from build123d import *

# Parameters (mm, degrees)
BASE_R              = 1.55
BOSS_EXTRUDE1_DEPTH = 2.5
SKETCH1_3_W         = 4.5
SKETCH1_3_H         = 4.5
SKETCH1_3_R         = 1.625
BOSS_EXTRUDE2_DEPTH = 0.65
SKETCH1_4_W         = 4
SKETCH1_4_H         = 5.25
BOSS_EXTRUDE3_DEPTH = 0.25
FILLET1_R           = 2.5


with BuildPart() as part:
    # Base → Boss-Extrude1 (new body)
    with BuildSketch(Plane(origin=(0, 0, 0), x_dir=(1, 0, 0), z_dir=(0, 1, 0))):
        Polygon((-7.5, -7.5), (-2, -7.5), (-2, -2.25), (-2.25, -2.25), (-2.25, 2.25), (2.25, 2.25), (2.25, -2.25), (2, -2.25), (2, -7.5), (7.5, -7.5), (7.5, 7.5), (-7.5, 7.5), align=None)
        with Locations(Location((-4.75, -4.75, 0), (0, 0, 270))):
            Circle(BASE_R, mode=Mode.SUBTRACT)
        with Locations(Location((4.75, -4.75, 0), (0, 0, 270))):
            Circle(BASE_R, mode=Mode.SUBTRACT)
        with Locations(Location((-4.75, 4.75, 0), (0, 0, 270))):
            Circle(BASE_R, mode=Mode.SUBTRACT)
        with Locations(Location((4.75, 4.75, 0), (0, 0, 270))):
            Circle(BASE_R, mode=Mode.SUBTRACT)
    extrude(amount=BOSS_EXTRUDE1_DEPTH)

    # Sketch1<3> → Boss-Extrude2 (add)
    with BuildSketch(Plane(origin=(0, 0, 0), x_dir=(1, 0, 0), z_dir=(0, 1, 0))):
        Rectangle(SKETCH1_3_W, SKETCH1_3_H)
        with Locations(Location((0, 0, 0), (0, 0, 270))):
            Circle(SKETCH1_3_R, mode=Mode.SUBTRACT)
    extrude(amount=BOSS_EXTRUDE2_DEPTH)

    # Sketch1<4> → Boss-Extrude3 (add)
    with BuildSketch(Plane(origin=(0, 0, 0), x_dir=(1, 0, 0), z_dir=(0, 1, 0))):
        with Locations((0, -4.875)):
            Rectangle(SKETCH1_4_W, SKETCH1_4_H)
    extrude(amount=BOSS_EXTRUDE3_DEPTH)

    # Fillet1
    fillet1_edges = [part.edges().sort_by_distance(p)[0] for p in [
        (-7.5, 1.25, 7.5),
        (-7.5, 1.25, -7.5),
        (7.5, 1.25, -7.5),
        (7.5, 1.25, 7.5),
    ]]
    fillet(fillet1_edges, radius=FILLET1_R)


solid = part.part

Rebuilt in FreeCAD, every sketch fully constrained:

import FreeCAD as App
import Part
import Sketcher
Q = App.Units.Quantity


def edges_at(feature, points):
    """Names of the edges that pass closest to the given points."""
    edges = feature.Shape.Edges
    near = lambda p: min(range(len(edges)), key=lambda i: edges[i].distToShape(Part.Vertex(*p))[0])
    return sorted({f"Edge{near(p) + 1}" for p in points})


def add_polygon(sketch, points):
    """Adds a closed chain of lines whose ends are joined by coincident constraints."""
    first, n = sketch.GeometryCount, len(points)
    for a, b in zip(points, points[1:] + points[:1]):
        sketch.addGeometry(Part.LineSegment(App.Vector(*a, 0), App.Vector(*b, 0)), False)
    for i in range(n):
        sketch.addConstraint(Sketcher.Constraint("Coincident", first + i, 2, first + (i + 1) % n, 1))

doc = App.newDocument("Part")
body = doc.addObject("PartDesign::Body", "Body")

sketch1 = doc.addObject("Sketcher::SketchObject", "Sketch")
body.addObject(sketch1)
sketch1.AttachmentSupport = (doc.XZ_Plane, [""])
sketch1.MapMode = "FlatFace"
add_polygon(sketch1, [(-7.5, 7.5), (-2, 7.5), (-2, 2.25), (-2.25, 2.25), (-2.25, -2.25), (2.25, -2.25), (2.25, 2.25), (2, 2.25), (2, 7.5), (7.5, 7.5), (7.5, -7.5), (-7.5, -7.5)])
sketch1.addGeometry(Part.Circle(App.Vector(-4.75, 4.75, 0), App.Vector(0, 0, 1), 1.55), False)
sketch1.addGeometry(Part.Circle(App.Vector(4.75, 4.75, 0), App.Vector(0, 0, 1), 1.55), False)
sketch1.addGeometry(Part.Circle(App.Vector(-4.75, -4.75, 0), App.Vector(0, 0, 1), 1.55), False)
sketch1.addGeometry(Part.Circle(App.Vector(4.75, -4.75, 0), App.Vector(0, 0, 1), 1.55), False)
sketch1.addConstraint([
    Sketcher.Constraint("Horizontal", 0),
    Sketcher.Constraint("Vertical", 1),
    Sketcher.Constraint("Horizontal", 2),
    Sketcher.Constraint("Vertical", 3),
    Sketcher.Constraint("Horizontal", 4),
    Sketcher.Constraint("Vertical", 5),
    Sketcher.Constraint("Horizontal", 6),
    Sketcher.Constraint("Vertical", 7),
    Sketcher.Constraint("Horizontal", 8),
    Sketcher.Constraint("Vertical", 9),
    Sketcher.Constraint("Horizontal", 10),
    Sketcher.Constraint("Vertical", 11),
    Sketcher.Constraint("Equal", 12, 13),
    Sketcher.Constraint("Equal", 13, 14),
    Sketcher.Constraint("Equal", 14, 15),
    Sketcher.Constraint("Symmetric", 13, 3, 14, 3, -1, 1),
    Sketcher.Constraint("Symmetric", 12, 3, 15, 3, -1, 1),
    Sketcher.Constraint("Symmetric", 2, 2, 4, 2, -1, 1),
    Sketcher.Constraint("Symmetric", 8, 2, 10, 2, -1, 1),
    Sketcher.Constraint("Symmetric", 12, 3, 13, 3, -2),
    Sketcher.Constraint("Symmetric", 1, 2, 6, 2, -2),
    Sketcher.Constraint("Horizontal", 0, 2, 7, 2),
    Sketcher.Constraint("Equal", 4, 3),
    Sketcher.Constraint("Equal", 10, 9),
    Sketcher.Constraint("Diameter", 12, Q("3.1 mm")),
    Sketcher.Constraint("DistanceX", 10, 2, 10, 1, Q("15 mm")),
    Sketcher.Constraint("DistanceX", 0, 1, 0, 2, Q("5.5 mm")),
    Sketcher.Constraint("DistanceX", 4, 1, 4, 2, Q("4.5 mm")),
    Sketcher.Constraint("DistanceY", 14, 3, 1, 2, Q("7 mm")),
    Sketcher.Constraint("DistanceX", 2, 2, 13, 3, Q("7 mm")),
])
pad1 = doc.addObject("PartDesign::Pad", "Pad")
body.addObject(pad1)
pad1.Profile = sketch1
pad1.Length = 2.5
pad1.Reversed = True

sketch2 = doc.addObject("Sketcher::SketchObject", "Sketch001")
body.addObject(sketch2)
sketch2.AttachmentSupport = (doc.XZ_Plane, [""])
sketch2.MapMode = "FlatFace"
add_polygon(sketch2, [(-2.2, -2.2), (-2.2, 2.2), (2.2, 2.2), (2.2, -2.2)])
sketch2.addGeometry(Part.Circle(App.Vector(0, 0, 0), App.Vector(0, 0, 1), 1.6), False)
sketch2.addConstraint([
    Sketcher.Constraint("Vertical", 0),
    Sketcher.Constraint("Horizontal", 1),
    Sketcher.Constraint("Vertical", 2),
    Sketcher.Constraint("Horizontal", 3),
    Sketcher.Constraint("Coincident", 4, 3, -1, 1),
    Sketcher.Constraint("Symmetric", 0, 2, 2, 2, -1, 1),
    Sketcher.Constraint("Equal", 3, 0),
    Sketcher.Constraint("Diameter", 4, Q("3.25 mm")),
    Sketcher.Constraint("DistanceX", 1, 1, 1, 2, Q("4.5 mm")),
])
pad2 = doc.addObject("PartDesign::Pad", "Pad001")
body.addObject(pad2)
pad2.Profile = sketch2
pad2.Length = 0.65
pad2.Reversed = True

sketch3 = doc.addObject("Sketcher::SketchObject", "Sketch002")
body.addObject(sketch3)
sketch3.AttachmentSupport = (doc.XZ_Plane, [""])
sketch3.MapMode = "FlatFace"
add_polygon(sketch3, [(-2, 2.2), (-2, 7.5), (2, 7.5), (2, 2.2)])
sketch3.addConstraint([
    Sketcher.Constraint("Vertical", 0),
    Sketcher.Constraint("Horizontal", 1),
    Sketcher.Constraint("Vertical", 2),
    Sketcher.Constraint("Horizontal", 3),
    Sketcher.Constraint("DistanceX", 1, 1, 1, 2, Q("4 mm")),
    Sketcher.Constraint("DistanceX", 0, 2, -1, 1, Q("2 mm")),
    Sketcher.Constraint("DistanceY", 0, 1, 0, 2, Q("5.25 mm")),
    Sketcher.Constraint("DistanceY", -1, 1, 0, 2, Q("7.5 mm")),
])
pad3 = doc.addObject("PartDesign::Pad", "Pad002")
body.addObject(pad3)
pad3.Profile = sketch3
pad3.Length = 0.25
pad3.Reversed = True
doc.recompute()

fillet = doc.addObject("PartDesign::Fillet", "Fillet")
body.addObject(fillet)
fillet.Base = (pad3, edges_at(pad3, [
    (-7.5, 1.25, 7.5),
    (-7.5, 1.25, -7.5),
    (7.5, 1.25, -7.5),
    (7.5, 1.25, 7.5),
]))
fillet.Radius = 2.5

doc.recompute()
